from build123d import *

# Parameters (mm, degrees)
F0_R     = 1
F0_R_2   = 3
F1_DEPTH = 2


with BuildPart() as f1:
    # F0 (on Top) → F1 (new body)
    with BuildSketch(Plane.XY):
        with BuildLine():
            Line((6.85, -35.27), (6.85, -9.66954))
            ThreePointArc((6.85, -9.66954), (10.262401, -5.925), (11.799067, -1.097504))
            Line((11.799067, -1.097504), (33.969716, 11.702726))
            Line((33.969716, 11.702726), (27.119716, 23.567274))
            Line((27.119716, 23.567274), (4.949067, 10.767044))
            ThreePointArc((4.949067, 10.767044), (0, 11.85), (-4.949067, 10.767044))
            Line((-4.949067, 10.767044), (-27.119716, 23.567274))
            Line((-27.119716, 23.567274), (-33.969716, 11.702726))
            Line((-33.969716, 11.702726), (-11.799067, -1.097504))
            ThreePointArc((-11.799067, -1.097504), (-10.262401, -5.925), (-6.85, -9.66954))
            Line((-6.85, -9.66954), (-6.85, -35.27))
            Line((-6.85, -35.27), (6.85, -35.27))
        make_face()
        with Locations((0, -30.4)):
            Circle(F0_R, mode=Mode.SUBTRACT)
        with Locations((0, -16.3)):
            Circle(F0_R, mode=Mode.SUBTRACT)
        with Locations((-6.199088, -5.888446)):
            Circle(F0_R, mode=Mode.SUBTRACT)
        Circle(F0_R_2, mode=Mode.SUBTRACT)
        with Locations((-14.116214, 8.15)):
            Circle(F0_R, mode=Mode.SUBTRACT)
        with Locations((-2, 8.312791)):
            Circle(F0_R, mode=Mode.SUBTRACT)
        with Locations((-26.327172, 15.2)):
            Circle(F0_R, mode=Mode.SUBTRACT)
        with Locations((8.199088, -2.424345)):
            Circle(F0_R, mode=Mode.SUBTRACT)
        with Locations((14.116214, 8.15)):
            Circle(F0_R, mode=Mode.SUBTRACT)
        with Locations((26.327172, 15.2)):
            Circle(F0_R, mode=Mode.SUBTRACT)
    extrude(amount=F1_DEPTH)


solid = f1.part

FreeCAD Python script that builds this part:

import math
import FreeCAD as App
import Part
import Sketcher
Q = App.Units.Quantity

doc = App.newDocument("Part")
body = doc.addObject("PartDesign::Body", "Body")

sketch1 = body.newObject("Sketcher::SketchObject", "Sketch")
sketch1.AttachmentSupport = (doc.getObject("XY_Plane"), [""])
sketch1.MapMode = "FlatFace"
sketch1.addGeometry([
    Part.LineSegment(App.Vector(6.8, -35.3, 0), App.Vector(6.8, -9.7, 0)),
    Part.ArcOfCircle(Part.Circle(App.Vector(0, 0, 0), App.Vector(0, 0, 1), 11.9), math.radians(-55), math.radians(-5)),
    Part.LineSegment(App.Vector(11.8, -1.1, 0), App.Vector(34, 11.7, 0)),
    Part.LineSegment(App.Vector(34, 11.7, 0), App.Vector(27.1, 23.6, 0)),
    Part.LineSegment(App.Vector(27.1, 23.6, 0), App.Vector(4.9, 10.8, 0)),
    Part.ArcOfCircle(Part.Circle(App.Vector(0, 0, 0), App.Vector(0, 0, 1), 11.9), math.radians(65), math.radians(115)),
    Part.LineSegment(App.Vector(-4.9, 10.8, 0), App.Vector(-27.1, 23.6, 0)),
    Part.LineSegment(App.Vector(-27.1, 23.6, 0), App.Vector(-34, 11.7, 0)),
    Part.LineSegment(App.Vector(-34, 11.7, 0), App.Vector(-11.8, -1.1, 0)),
    Part.ArcOfCircle(Part.Circle(App.Vector(0, 0, 0), App.Vector(0, 0, 1), 11.9), math.radians(-175), math.radians(-125)),
    Part.LineSegment(App.Vector(-6.8, -9.7, 0), App.Vector(-6.8, -35.3, 0)),
    Part.LineSegment(App.Vector(-6.8, -35.3, 0), App.Vector(6.8, -35.3, 0)),
    Part.Circle(App.Vector(0, -30.4, 0), App.Vector(0, 0, 1), 1),
    Part.Circle(App.Vector(0, -16.3, 0), App.Vector(0, 0, 1), 1),
    Part.Circle(App.Vector(-6.2, -5.9, 0), App.Vector(0, 0, 1), 1),
    Part.Circle(App.Vector(0, 0, 0), App.Vector(0, 0, 1), 3),
    Part.Circle(App.Vector(-14.1, 8.2, 0), App.Vector(0, 0, 1), 1),
    Part.Circle(App.Vector(-26.3, 15.2, 0), App.Vector(0, 0, 1), 1),
    Part.Circle(App.Vector(-2, 8.3, 0), App.Vector(0, 0, 1), 1),
    Part.Circle(App.Vector(8.2, -2.4, 0), App.Vector(0, 0, 1), 1),
    Part.Circle(App.Vector(14.1, 8.2, 0), App.Vector(0, 0, 1), 1),
    Part.Circle(App.Vector(26.3, 15.2, 0), App.Vector(0, 0, 1), 1),
], False)
sketch1.addConstraint([
    Sketcher.Constraint("Coincident", 0, 2, 1, 1),
    Sketcher.Constraint("Coincident", 1, 2, 2, 1),
    Sketcher.Constraint("Coincident", 2, 2, 3, 1),
    Sketcher.Constraint("Coincident", 3, 2, 4, 1),
    Sketcher.Constraint("Coincident", 4, 2, 5, 1),
    Sketcher.Constraint("Coincident", 5, 2, 6, 1),
    Sketcher.Constraint("Coincident", 6, 2, 7, 1),
    Sketcher.Constraint("Coincident", 7, 2, 8, 1),
    Sketcher.Constraint("Coincident", 8, 2, 9, 1),
    Sketcher.Constraint("Coincident", 9, 2, 10, 1),
    Sketcher.Constraint("Coincident", 10, 2, 11, 1),
    Sketcher.Constraint("Coincident", 11, 2, 0, 1),
    Sketcher.Constraint("Vertical", 0),
    Sketcher.Constraint("Vertical", 10),
    Sketcher.Constraint("Horizontal", 11),
    Sketcher.Constraint("Coincident", 1, 3, -1, 1),
    Sketcher.Constraint("Coincident", 5, 3, -1, 1),
    Sketcher.Constraint("Coincident", 9, 3, -1, 1),
    Sketcher.Constraint("Coincident", 15, 3, -1, 1),
    Sketcher.Constraint("Equal", 1, 5),
    Sketcher.Constraint("Equal", 5, 9),
    Sketcher.Constraint("Equal", 12, 13),
    Sketcher.Constraint("Equal", 13, 14),
    Sketcher.Constraint("Equal", 14, 16),
    Sketcher.Constraint("Equal", 16, 17),
    Sketcher.Constraint("Equal", 17, 18),
    Sketcher.Constraint("Equal", 18, 19),
    Sketcher.Constraint("Equal", 19, 20),
    Sketcher.Constraint("Equal", 20, 21),
    Sketcher.Constraint("Symmetric", 16, 3, 20, 3, -2),
    Sketcher.Constraint("Symmetric", 17, 3, 21, 3, -2),
    Sketcher.Constraint("Symmetric", 3, 2, 6, 2, -2),
    Sketcher.Constraint("Symmetric", 2, 2, 7, 2, -2),
    Sketcher.Constraint("PointOnObject", 12, 3, -2),
    Sketcher.Constraint("PointOnObject", 13, 3, -2),
    Sketcher.Constraint("Perpendicular", 2, 3),
    Sketcher.Constraint("Perpendicular", 3, 4),
    Sketcher.Constraint("Perpendicular", 6, 7),
    Sketcher.Constraint("Perpendicular", 7, 8),
    Sketcher.Constraint("Horizontal", 0, 2, 9, 2),
    Sketcher.Constraint("Equal", 2, 4),
    Sketcher.Constraint("Diameter", 12, 2.0),
    Sketcher.Constraint("Diameter", 15, 6.0),
    Sketcher.Constraint("Angle", 2, Q("30 deg")),
    Sketcher.Constraint("Radius", 1, 11.850001),
    Sketcher.Constraint("DistanceX", 11, 1, 11, 2, 13.7),
    Sketcher.Constraint("DistanceX", 18, 3, -1, 1, 2.0),
    Sketcher.Constraint("Distance", 3, 13.7),
    Sketcher.Constraint("DistanceY", 12, 3, -1, 1, 30.4),
    Sketcher.Constraint("DistanceY", 13, 3, -1, 1, 16.3),
    Sketcher.Constraint("DistanceY", -1, 1, 17, 3, 15.2),
    Sketcher.Constraint("DistanceY", -1, 1, 16, 3, 8.15),
    Sketcher.Constraint("DistanceY", 10, 2, -1, 1, 35.27),
    Sketcher.Constraint("DistanceY", 14, 3, 19, 3, 3.464101),
    Sketcher.Constraint("DistanceX", 20, 3, 2, 2, 19.853502),
    Sketcher.Constraint("Distance", 2, 25.60046),
    Sketcher.Constraint("DistanceY", -1, 1, 18, 3, 8.312791),
    Sketcher.Constraint("DistanceX", 14, 3, 9, 3, 6.199089),
    Sketcher.Constraint("DistanceX", 17, 3, 16, 3, 12.210958),
    Sketcher.Constraint("DistanceX", 1, 3, 19, 3, 8.199089),
    Sketcher.Constraint("DistanceY", 19, 3, 1, 2, 1.326841),
])
pad1 = body.newObject("PartDesign::Pad", "Pad")
pad1.Profile = sketch1
pad1.Length = 2

doc.recompute()
